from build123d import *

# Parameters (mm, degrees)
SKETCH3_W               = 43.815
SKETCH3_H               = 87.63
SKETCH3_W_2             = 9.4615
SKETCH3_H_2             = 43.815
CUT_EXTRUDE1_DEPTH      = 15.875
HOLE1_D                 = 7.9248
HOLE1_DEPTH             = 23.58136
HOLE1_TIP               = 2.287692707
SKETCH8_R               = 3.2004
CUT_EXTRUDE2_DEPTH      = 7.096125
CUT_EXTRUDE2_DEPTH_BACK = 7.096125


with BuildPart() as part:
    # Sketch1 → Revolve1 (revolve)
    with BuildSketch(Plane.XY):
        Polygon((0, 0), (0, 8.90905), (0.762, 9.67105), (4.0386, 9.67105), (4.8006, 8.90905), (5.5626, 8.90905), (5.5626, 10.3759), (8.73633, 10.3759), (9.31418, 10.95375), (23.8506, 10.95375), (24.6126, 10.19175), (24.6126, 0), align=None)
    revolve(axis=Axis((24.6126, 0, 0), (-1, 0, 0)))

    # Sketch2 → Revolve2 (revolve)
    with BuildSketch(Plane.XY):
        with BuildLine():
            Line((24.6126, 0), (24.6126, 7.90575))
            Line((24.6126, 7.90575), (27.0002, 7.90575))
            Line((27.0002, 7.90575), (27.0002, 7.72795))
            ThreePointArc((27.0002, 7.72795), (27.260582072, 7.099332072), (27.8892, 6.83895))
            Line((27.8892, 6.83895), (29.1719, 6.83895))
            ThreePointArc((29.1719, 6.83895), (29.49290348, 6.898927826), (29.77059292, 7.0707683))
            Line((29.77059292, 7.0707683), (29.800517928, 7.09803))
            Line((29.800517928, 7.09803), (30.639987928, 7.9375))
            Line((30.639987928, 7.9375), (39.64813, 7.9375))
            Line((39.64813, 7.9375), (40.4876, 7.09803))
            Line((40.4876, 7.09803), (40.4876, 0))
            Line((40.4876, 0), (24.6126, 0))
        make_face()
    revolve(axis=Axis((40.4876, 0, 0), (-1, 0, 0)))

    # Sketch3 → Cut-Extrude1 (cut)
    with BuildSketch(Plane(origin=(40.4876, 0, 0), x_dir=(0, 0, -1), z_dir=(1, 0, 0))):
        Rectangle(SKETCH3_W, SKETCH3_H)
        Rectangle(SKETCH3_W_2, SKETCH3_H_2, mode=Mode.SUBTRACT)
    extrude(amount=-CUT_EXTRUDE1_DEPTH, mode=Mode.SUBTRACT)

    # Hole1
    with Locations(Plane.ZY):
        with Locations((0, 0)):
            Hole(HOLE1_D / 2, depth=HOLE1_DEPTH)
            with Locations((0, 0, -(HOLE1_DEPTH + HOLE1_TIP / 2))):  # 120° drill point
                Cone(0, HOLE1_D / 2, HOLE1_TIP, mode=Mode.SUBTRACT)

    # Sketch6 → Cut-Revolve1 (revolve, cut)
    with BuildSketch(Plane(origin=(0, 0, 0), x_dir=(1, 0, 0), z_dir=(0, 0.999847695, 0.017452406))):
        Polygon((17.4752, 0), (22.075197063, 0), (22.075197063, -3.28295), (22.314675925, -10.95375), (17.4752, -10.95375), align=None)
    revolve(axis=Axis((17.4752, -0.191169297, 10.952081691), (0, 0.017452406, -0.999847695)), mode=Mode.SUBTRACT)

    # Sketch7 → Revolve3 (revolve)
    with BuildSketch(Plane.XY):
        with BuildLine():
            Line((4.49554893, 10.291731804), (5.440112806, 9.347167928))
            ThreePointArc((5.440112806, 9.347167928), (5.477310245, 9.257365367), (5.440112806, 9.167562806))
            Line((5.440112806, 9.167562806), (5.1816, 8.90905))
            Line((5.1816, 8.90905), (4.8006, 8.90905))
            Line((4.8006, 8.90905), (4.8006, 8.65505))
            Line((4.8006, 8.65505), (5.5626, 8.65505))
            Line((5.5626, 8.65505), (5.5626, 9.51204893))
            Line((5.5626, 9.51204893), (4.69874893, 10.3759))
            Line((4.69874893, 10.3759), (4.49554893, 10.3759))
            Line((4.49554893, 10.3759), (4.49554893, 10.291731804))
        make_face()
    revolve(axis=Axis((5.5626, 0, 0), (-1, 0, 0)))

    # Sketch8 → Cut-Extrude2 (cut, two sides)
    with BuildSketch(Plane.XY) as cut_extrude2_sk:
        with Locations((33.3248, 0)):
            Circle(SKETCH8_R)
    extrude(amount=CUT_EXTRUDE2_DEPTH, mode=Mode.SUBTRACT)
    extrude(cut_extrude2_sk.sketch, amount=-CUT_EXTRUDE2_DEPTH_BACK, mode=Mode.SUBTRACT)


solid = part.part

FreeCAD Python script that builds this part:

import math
import FreeCAD as App
import Part
import Sketcher
Q = App.Units.Quantity

doc = App.newDocument("Part")
params = doc.addObject("Spreadsheet::Sheet", "Params")
for row, (alias, value) in enumerate([
    ("sketch1_width", "0.03 in"),
    ("sketch1_width2", "0.969 in"),
    ("sketch1_width3", "0.129 in"),
    ("revolution_angle", "360 deg"),
    ("sketch2_radius", "0.035 in"),
    ("sketch2_width", "0.625 in"),
    ("sketch2_width2", "0.094 in"),
    ("sketch2_height", "0.007 in"),
    ("revolution2_angle", "360 deg"),
    ("sketch3_width", "3.45 in"),
    ("sketch3_width2", "1.725 in"),
    ("pocket1_length", "0.625 in"),
    ("sketch4_diameter", "0.312 in"),
    ("hole_diameter", "0.312 in"),
    ("hole_depth", "0.9284 in"),
    ("groove_angle", "360 deg"),
    ("sketch6_radius", "0.005 in"),
    ("sketch6_width", "0.03 in"),
    ("sketch6_height", "0.01 in"),
    ("sketch6_width2", "0.015 in"),
    ("sketch6_width3", "0.008 in"),
    ("revolution3_angle", "360 deg"),
    ("sketch7_diameter", "0.252 in"),
], start=1):
    params.set(f"A{row}", alias)
    params.set(f"B{row}", "=" + value)
    params.setAlias(f"B{row}", alias)

body = doc.addObject("PartDesign::Body", "Body")

# Sketch on XY plane
sketch1 = body.newObject("Sketcher::SketchObject", "Sketch")
sketch1.AttachmentSupport = (doc.getObject("XY_Plane"), [""])
sketch1.MapMode = "FlatFace"
sketch1.addGeometry(Part.LineSegment(App.Vector(0, 8.9, 0), App.Vector(0, 0, 0)), False)
sketch1.addGeometry(Part.LineSegment(App.Vector(0, 0, 0), App.Vector(24.6, 0, 0)), False)
sketch1.addGeometry(Part.LineSegment(App.Vector(24.6, 0, 0), App.Vector(24.6, 10.2, 0)), False)
sketch1.addGeometry(Part.LineSegment(App.Vector(24.6, 10.2, 0), App.Vector(23.9, 11, 0)), False)
sketch1.addGeometry(Part.LineSegment(App.Vector(23.9, 11, 0), App.Vector(9.3, 11, 0)), False)
sketch1.addGeometry(Part.LineSegment(App.Vector(9.3, 11, 0), App.Vector(8.7, 10.4, 0)), False)
sketch1.addGeometry(Part.LineSegment(App.Vector(8.7, 10.4, 0), App.Vector(5.6, 10.4, 0)), False)
sketch1.addGeometry(Part.LineSegment(App.Vector(5.6, 10.4, 0), App.Vector(5.6, 8.9, 0)), False)
sketch1.addGeometry(Part.LineSegment(App.Vector(5.6, 8.9, 0), App.Vector(4.8, 8.9, 0)), False)
sketch1.addGeometry(Part.LineSegment(App.Vector(4.8, 8.9, 0), App.Vector(4, 9.7, 0)), False)
sketch1.addGeometry(Part.LineSegment(App.Vector(4, 9.7, 0), App.Vector(0.8, 9.7, 0)), False)
sketch1.addGeometry(Part.LineSegment(App.Vector(0.8, 9.7, 0), App.Vector(0, 8.9, 0)), False)
sketch1.addConstraint(Sketcher.Constraint("Coincident", 0, 2, 1, 1))
sketch1.addConstraint(Sketcher.Constraint("Coincident", 1, 2, 2, 1))
sketch1.addConstraint(Sketcher.Constraint("Coincident", 2, 2, 3, 1))
sketch1.addConstraint(Sketcher.Constraint("Coincident", 3, 2, 4, 1))
sketch1.addConstraint(Sketcher.Constraint("Coincident", 4, 2, 5, 1))
sketch1.addConstraint(Sketcher.Constraint("Coincident", 5, 2, 6, 1))
sketch1.addConstraint(Sketcher.Constraint("Coincident", 6, 2, 7, 1))
sketch1.addConstraint(Sketcher.Constraint("Coincident", 7, 2, 8, 1))
sketch1.addConstraint(Sketcher.Constraint("Coincident", 8, 2, 9, 1))
sketch1.addConstraint(Sketcher.Constraint("Coincident", 9, 2, 10, 1))
sketch1.addConstraint(Sketcher.Constraint("Coincident", 10, 2, 11, 1))
sketch1.addConstraint(Sketcher.Constraint("Coincident", 11, 2, 0, 1))
sketch1.addConstraint(Sketcher.Constraint("Vertical", 0))
sketch1.addConstraint(Sketcher.Constraint("Horizontal", 1))
sketch1.addConstraint(Sketcher.Constraint("Vertical", 2))
sketch1.addConstraint(Sketcher.Constraint("Horizontal", 4))
sketch1.addConstraint(Sketcher.Constraint("Horizontal", 6))
sketch1.addConstraint(Sketcher.Constraint("Vertical", 7))
sketch1.addConstraint(Sketcher.Constraint("Horizontal", 8))
sketch1.addConstraint(Sketcher.Constraint("Horizontal", 10))
sketch1.addConstraint(Sketcher.Constraint("Coincident", 0, 2, -1, 1))
sketch1.addConstraint(Sketcher.Constraint("Perpendicular", 3, 5))
sketch1.addConstraint(Sketcher.Constraint("Perpendicular", 5, 9))
sketch1.addConstraint(Sketcher.Constraint("Perpendicular", 9, 11))
sketch1.addConstraint(Sketcher.Constraint("Horizontal", 8, 2, 11, 2))
sketch1.addConstraint(Sketcher.Constraint("Equal", 3, 9))
sketch1.addConstraint(Sketcher.Constraint("Equal", 9, 11))
sketch1.addConstraint(Sketcher.Constraint("DistanceX", 8, 2, 8, 1, Q("0.03 in")))
sketch1.addConstraint(Sketcher.Constraint("DistanceX", 1, 1, 1, 2, Q("0.969 in")))
sketch1.addConstraint(Sketcher.Constraint("DistanceX", 10, 2, 10, 1, Q("0.129 in")))
sketch1.addConstraint(Sketcher.Constraint("DistanceX", -1, 1, 10, 2, Q("0.03 in")))
sketch1.addConstraint(Sketcher.Constraint("DistanceX", 4, 2, 4, 1, Q("0.5723 in")))
sketch1.addConstraint(Sketcher.Constraint("DistanceY", -1, 1, 5, 2, Q("0.4085 in")))
sketch1.addConstraint(Sketcher.Constraint("DistanceY", 7, 2, 4, 2, Q("0.0805 in")))
sketch1.addConstraint(Sketcher.Constraint("DistanceX", 6, 2, 6, 1, Q("3.17373 mm")))
sketch1.setExpression("Constraints[27]", "Params.sketch1_width")
sketch1.setExpression("Constraints[28]", "Params.sketch1_width2")
sketch1.setExpression("Constraints[29]", "Params.sketch1_width3")
revolution = body.newObject("PartDesign::Revolution", "Revolution")
revolution.Profile = sketch1
revolution.ReferenceAxis = (sketch1, ["H_Axis"])
revolution.setExpression("Angle", "Params.revolution_angle")

# Sketch on XY plane
sketch2 = body.newObject("Sketcher::SketchObject", "Sketch001")
sketch2.AttachmentSupport = (doc.getObject("XY_Plane"), [""])
sketch2.MapMode = "FlatFace"
sketch2.addGeometry(Part.LineSegment(App.Vector(24.613, 7.906, 0), App.Vector(24.613, 0, 0)), False)
sketch2.addGeometry(Part.LineSegment(App.Vector(24.613, 0, 0), App.Vector(40.488, 0, 0)), False)
sketch2.addGeometry(Part.LineSegment(App.Vector(40.488, 0, 0), App.Vector(40.488, 7.098, 0)), False)
sketch2.addGeometry(Part.LineSegment(App.Vector(40.488, 7.098, 0), App.Vector(39.648, 7.938, 0)), False)
sketch2.addGeometry(Part.LineSegment(App.Vector(39.648, 7.938, 0), App.Vector(30.64, 7.938, 0)), False)
sketch2.addGeometry(Part.LineSegment(App.Vector(30.64, 7.938, 0), App.Vector(29.801, 7.098, 0)), False)
sketch2.addGeometry(Part.LineSegment(App.Vector(29.801, 7.098, 0), App.Vector(29.771, 7.071, 0)), False)
sketch2.addGeometry(Part.ArcOfCircle(Part.Circle(App.Vector(29.172, 7.728, 0), App.Vector(0, 0, 1), 0.889), math.radians(-90), math.radians(-48)), False)
sketch2.addGeometry(Part.LineSegment(App.Vector(29.172, 6.839, 0), App.Vector(27.889, 6.839, 0)), False)
sketch2.addGeometry(Part.ArcOfCircle(Part.Circle(App.Vector(27.889, 7.728, 0), App.Vector(0, 0, 1), 0.889), math.radians(-180), math.radians(-90)), False)
sketch2.addGeometry(Part.LineSegment(App.Vector(27, 7.728, 0), App.Vector(27, 7.906, 0)), False)
sketch2.addGeometry(Part.LineSegment(App.Vector(27, 7.906, 0), App.Vector(24.613, 7.906, 0)), False)
sketch2.addConstraint(Sketcher.Constraint("Coincident", 0, 2, 1, 1))
sketch2.addConstraint(Sketcher.Constraint("Coincident", 1, 2, 2, 1))
sketch2.addConstraint(Sketcher.Constraint("Coincident", 2, 2, 3, 1))
sketch2.addConstraint(Sketcher.Constraint("Coincident", 3, 2, 4, 1))
sketch2.addConstraint(Sketcher.Constraint("Coincident", 4, 2, 5, 1))
sketch2.addConstraint(Sketcher.Constraint("Coincident", 5, 2, 6, 1))
sketch2.addConstraint(Sketcher.Constraint("Tangent", 6, 2, 7, 2))
sketch2.addConstraint(Sketcher.Constraint("Tangent", 7, 1, 8, 1))
sketch2.addConstraint(Sketcher.Constraint("Tangent", 8, 2, 9, 2))
sketch2.addConstraint(Sketcher.Constraint("Tangent", 9, 1, 10, 1))
sketch2.addConstraint(Sketcher.Constraint("Coincident", 10, 2, 11, 1))
sketch2.addConstraint(Sketcher.Constraint("Coincident", 11, 2, 0, 1))
sketch2.addConstraint(Sketcher.Constraint("Vertical", 0))
sketch2.addConstraint(Sketcher.Constraint("Horizontal", 1))
sketch2.addConstraint(Sketcher.Constraint("Vertical", 2))
sketch2.addConstraint(Sketcher.Constraint("Horizontal", 4))
sketch2.addConstraint(Sketcher.Constraint("Horizontal", 8))
sketch2.addConstraint(Sketcher.Constraint("Vertical", 10))
sketch2.addConstraint(Sketcher.Constraint("Horizontal", 11))
sketch2.addConstraint(Sketcher.Constraint("Equal", 7, 9))
sketch2.addConstraint(Sketcher.Constraint("PointOnObject", 0, 2, -1))
sketch2.addConstraint(Sketcher.Constraint("Perpendicular", 3, 5))
sketch2.addConstraint(Sketcher.Constraint("Horizontal", 2, 2, 5, 2))
sketch2.addConstraint(Sketcher.Constraint("Equal", 3, 5))
sketch2.addConstraint(Sketcher.Constraint("Radius", 7, Q("0.035 in")))
sketch2.addConstraint(Sketcher.Constraint("DistanceX", 1, 1, 1, 2, Q("0.625 in")))
sketch2.addConstraint(Sketcher.Constraint("DistanceX", 11, 2, 11, 1, Q("0.094 in")))
sketch2.addConstraint(Sketcher.Constraint("DistanceY", 10, 1, 10, 2, Q("0.007 in")))
sketch2.addConstraint(Sketcher.Constraint("DistanceX", 8, 2, 8, 1, Q("0.0505 in")))
sketch2.addConstraint(Sketcher.Constraint("DistanceX", -1, 1, 9, 3, Q("1.098 in")))
sketch2.addConstraint(Sketcher.Constraint("DistanceY", -1, 1, 3, 2, Q("0.3125 in")))
sketch2.addConstraint(Sketcher.Constraint("DistanceY", 2, 2, 7, 3, Q("0.0248 in")))
sketch2.addConstraint(Sketcher.Constraint("DistanceY", 0, 2, 0, 1, Q("7.90575 mm")))
sketch2.addConstraint(Sketcher.Constraint("Distance", 6, Q("0.040481 mm")))
sketch2.setExpression("Constraints[24]", "Params.sketch2_radius")
sketch2.setExpression("Constraints[25]", "Params.sketch2_width")
sketch2.setExpression("Constraints[26]", "Params.sketch2_width2")
sketch2.setExpression("Constraints[27]", "Params.sketch2_height")
revolution2 = body.newObject("PartDesign::Revolution", "Revolution001")
revolution2.Profile = sketch2
revolution2.ReferenceAxis = (sketch2, ["H_Axis"])
revolution2.setExpression("Angle", "Params.revolution2_angle")

# Sketch on YZ plane
sketch3 = body.newObject("Sketcher::SketchObject", "Sketch002")
sketch3.AttachmentSupport = (doc.getObject("YZ_Plane"), [""])
sketch3.MapMode = "FlatFace"
sketch3.AttachmentOffset = App.Placement(App.Vector(0, 0, 1.594 * 25.4), App.Rotation())
sketch3.addGeometry(Part.LineSegment(App.Vector(44, 22, 0), App.Vector(-44, 22, 0)), False)
sketch3.addGeometry(Part.LineSegment(App.Vector(-44, 22, 0), App.Vector(-44, -22, 0)), False)
sketch3.addGeometry(Part.LineSegment(App.Vector(-44, -22, 0), App.Vector(44, -22, 0)), False)
sketch3.addGeometry(Part.LineSegment(App.Vector(44, -22, 0), App.Vector(44, 22, 0)), False)
sketch3.addGeometry(Part.LineSegment(App.Vector(-22, -5, 0), App.Vector(-22, 5, 0)), False)
sketch3.addGeometry(Part.LineSegment(App.Vector(-22, 5, 0), App.Vector(22, 5, 0)), False)
sketch3.addGeometry(Part.LineSegment(App.Vector(22, 5, 0), App.Vector(22, -5, 0)), False)
sketch3.addGeometry(Part.LineSegment(App.Vector(22, -5, 0), App.Vector(-22, -5, 0)), False)
sketch3.addConstraint(Sketcher.Constraint("Coincident", 0, 2, 1, 1))
sketch3.addConstraint(Sketcher.Constraint("Coincident", 1, 2, 2, 1))
sketch3.addConstraint(Sketcher.Constraint("Coincident", 2, 2, 3, 1))
sketch3.addConstraint(Sketcher.Constraint("Coincident", 3, 2, 0, 1))
sketch3.addConstraint(Sketcher.Constraint("Coincident", 4, 2, 5, 1))
sketch3.addConstraint(Sketcher.Constraint("Coincident", 5, 2, 6, 1))
sketch3.addConstraint(Sketcher.Constraint("Coincident", 6, 2, 7, 1))
sketch3.addConstraint(Sketcher.Constraint("Coincident", 7, 2, 4, 1))
sketch3.addConstraint(Sketcher.Constraint("Horizontal", 0))
sketch3.addConstraint(Sketcher.Constraint("Vertical", 1))
sketch3.addConstraint(Sketcher.Constraint("Horizontal", 2))
sketch3.addConstraint(Sketcher.Constraint("Vertical", 3))
sketch3.addConstraint(Sketcher.Constraint("Vertical", 4))
sketch3.addConstraint(Sketcher.Constraint("Horizontal", 5))
sketch3.addConstraint(Sketcher.Constraint("Vertical", 6))
sketch3.addConstraint(Sketcher.Constraint("Horizontal", 7))
sketch3.addConstraint(Sketcher.Constraint("Symmetric", 0, 2, 2, 2, -1, 1))
sketch3.addConstraint(Sketcher.Constraint("Symmetric", 4, 2, 6, 2, -1, 1))
sketch3.addConstraint(Sketcher.Constraint("Equal", 7, 1))
sketch3.addConstraint(Sketcher.Constraint("DistanceX", 0, 2, 0, 1, Q("3.45 in")))
sketch3.addConstraint(Sketcher.Constraint("DistanceX", 5, 1, 5, 2, Q("1.725 in")))
sketch3.addConstraint(Sketcher.Constraint("DistanceY", 4, 1, 4, 2, Q("0.3725 in")))
sketch3.setExpression("Constraints[19]", "Params.sketch3_width")
sketch3.setExpression("Constraints[20]", "Params.sketch3_width2")
pocket1 = body.newObject("PartDesign::Pocket", "Pocket")
pocket1.Profile = sketch3
pocket1.setExpression("Length", "Params.pocket1_length")

# Sketch on YZ plane
sketch4 = body.newObject("Sketcher::SketchObject", "Sketch003")
sketch4.AttachmentSupport = (doc.getObject("YZ_Plane"), [""])
sketch4.MapMode = "FlatFace"
sketch4.addGeometry(Part.Circle(App.Vector(0, 0, 0), App.Vector(0, 0, 1), 4), False)
sketch4.addConstraint(Sketcher.Constraint("Coincident", 0, 3, -1, 1))
sketch4.addConstraint(Sketcher.Constraint("Diameter", 0, Q("0.312 in")))
sketch4.setExpression("Constraints[1]", "Params.sketch4_diameter")
doc.recompute()
hole = body.newObject("PartDesign::Hole", "Hole")
hole.Profile = sketch4
hole.ThreadType = "None"
hole.setExpression("Diameter", "Params.hole_diameter")
hole.DepthType = "Dimension"
hole.setExpression("Depth", "Params.hole_depth")
hole.DrillPoint = "Angled"
hole.DrillPointAngle = 120
hole.Reversed = True

# Sketch on an angled plane
sketch5 = body.newObject("Sketcher::SketchObject", "Sketch004")
sketch5.Placement = App.Placement(App.Vector(0, 0, 0), App.Rotation(App.Vector(1, 0, 0), App.Vector(0, 0.017452406, -0.999847695), App.Vector(0, 0.999847695, 0.017452406), "ZXY"))
sketch5.addGeometry(Part.LineSegment(App.Vector(22.1, 0, 0), App.Vector(17.5, 0, 0)), False)
sketch5.addGeometry(Part.LineSegment(App.Vector(17.5, 0, 0), App.Vector(17.5, -11, 0)), False)
sketch5.addGeometry(Part.LineSegment(App.Vector(17.5, -11, 0), App.Vector(22.3, -11, 0)), False)
sketch5.addGeometry(Part.LineSegment(App.Vector(22.3, -11, 0), App.Vector(22.1, -3.3, 0)), False)
sketch5.addGeometry(Part.LineSegment(App.Vector(22.1, -3.3, 0), App.Vector(22.1, 0, 0)), False)
sketch5.addGeometry(Part.LineSegment(App.Vector(17.5, -11, 0), App.Vector(17.5, 0, 0)), True)  # axis
sketch5.addConstraint(Sketcher.Constraint("Coincident", 0, 2, 1, 1))
sketch5.addConstraint(Sketcher.Constraint("Coincident", 1, 2, 2, 1))
sketch5.addConstraint(Sketcher.Constraint("Coincident", 2, 2, 3, 1))
sketch5.addConstraint(Sketcher.Constraint("Coincident", 3, 2, 4, 1))
sketch5.addConstraint(Sketcher.Constraint("Coincident", 4, 2, 0, 1))
sketch5.addConstraint(Sketcher.Constraint("Horizontal", 0))
sketch5.addConstraint(Sketcher.Constraint("Vertical", 1))
sketch5.addConstraint(Sketcher.Constraint("Horizontal", 2))
sketch5.addConstraint(Sketcher.Constraint("Vertical", 4))
sketch5.addConstraint(Sketcher.Constraint("Vertical", 5))
sketch5.addConstraint(Sketcher.Constraint("Coincident", 5, 1, 1, 2))
sketch5.addConstraint(Sketcher.Constraint("PointOnObject", 0, 2, -1))
sketch5.addConstraint(Sketcher.Constraint("PointOnObject", 5, 2, -1))
sketch5.addConstraint(Sketcher.Constraint("DistanceX", -1, 1, 0, 2, Q("0.688 in")))
sketch5.addConstraint(Sketcher.Constraint("DistanceY", 2, 2, 3, 2, Q("0.302 in")))
sketch5.addConstraint(Sketcher.Constraint("DistanceY", 1, 2, 1, 1, Q("10.95375 mm")))
sketch5.addConstraint(Sketcher.Constraint("DistanceX", 0, 2, 0, 1, Q("4.599997 mm")))
sketch5.addConstraint(Sketcher.Constraint("DistanceX", 2, 1, 2, 2, Q("4.839476 mm")))
groove = body.newObject("PartDesign::Groove", "Groove")
groove.Profile = sketch5
groove.ReferenceAxis = (sketch5, ["Axis0"])
groove.setExpression("Angle", "Params.groove_angle")

# Sketch on XY plane
sketch6 = body.newObject("Sketcher::SketchObject", "Sketch005")
sketch6.AttachmentSupport = (doc.getObject("XY_Plane"), [""])
sketch6.MapMode = "FlatFace"
sketch6.addGeometry(Part.LineSegment(App.Vector(4.5, 10.29, 0), App.Vector(5.44, 9.35, 0)), False)
sketch6.addGeometry(Part.ArcOfCircle(Part.Circle(App.Vector(5.35, 9.26, 0), App.Vector(0, 0, 1), 0.13), math.radians(-45), math.radians(45)), False)
sketch6.addGeometry(Part.LineSegment(App.Vector(5.44, 9.17, 0), App.Vector(5.18, 8.91, 0)), False)
sketch6.addGeometry(Part.LineSegment(App.Vector(5.18, 8.91, 0), App.Vector(4.8, 8.91, 0)), False)
sketch6.addGeometry(Part.LineSegment(App.Vector(4.8, 8.91, 0), App.Vector(4.8, 8.66, 0)), False)
sketch6.addGeometry(Part.LineSegment(App.Vector(4.8, 8.66, 0), App.Vector(5.56, 8.66, 0)), False)
sketch6.addGeometry(Part.LineSegment(App.Vector(5.56, 8.66, 0), App.Vector(5.56, 9.51, 0)), False)
sketch6.addGeometry(Part.LineSegment(App.Vector(5.56, 9.51, 0), App.Vector(4.7, 10.38, 0)), False)
sketch6.addGeometry(Part.LineSegment(App.Vector(4.7, 10.38, 0), App.Vector(4.5, 10.38, 0)), False)
sketch6.addGeometry(Part.LineSegment(App.Vector(4.5, 10.38, 0), App.Vector(4.5, 10.29, 0)), False)
sketch6.addConstraint(Sketcher.Constraint("Tangent", 0, 2, 1, 2))
sketch6.addConstraint(Sketcher.Constraint("Tangent", 1, 1, 2, 1))
sketch6.addConstraint(Sketcher.Constraint("Coincident", 2, 2, 3, 1))
sketch6.addConstraint(Sketcher.Constraint("Coincident", 3, 2, 4, 1))
sketch6.addConstraint(Sketcher.Constraint("Coincident", 4, 2, 5, 1))
sketch6.addConstraint(Sketcher.Constraint("Coincident", 5, 2, 6, 1))
sketch6.addConstraint(Sketcher.Constraint("Coincident", 6, 2, 7, 1))
sketch6.addConstraint(Sketcher.Constraint("Coincident", 7, 2, 8, 1))
sketch6.addConstraint(Sketcher.Constraint("Coincident", 8, 2, 9, 1))
sketch6.addConstraint(Sketcher.Constraint("Coincident", 9, 2, 0, 1))
sketch6.addConstraint(Sketcher.Constraint("Horizontal", 3))
sketch6.addConstraint(Sketcher.Constraint("Vertical", 4))
sketch6.addConstraint(Sketcher.Constraint("Horizontal", 5))
sketch6.addConstraint(Sketcher.Constraint("Vertical", 6))
sketch6.addConstraint(Sketcher.Constraint("Horizontal", 8))
sketch6.addConstraint(Sketcher.Constraint("Vertical", 9))
sketch6.addConstraint(Sketcher.Constraint("Perpendicular", 0, 2))
sketch6.addConstraint(Sketcher.Constraint("Perpendicular", 2, 7))
sketch6.addConstraint(Sketcher.Constraint("Vertical", 0, 2, 1, 1))
sketch6.addConstraint(Sketcher.Constraint("Radius", 1, Q("0.005 in")))
sketch6.addConstraint(Sketcher.Constraint("DistanceX", 5, 1, 5, 2, Q("0.03 in")))
sketch6.addConstraint(Sketcher.Constraint("DistanceY", 4, 2, 4, 1, Q("0.01 in")))
sketch6.addConstraint(Sketcher.Constraint("DistanceX", 3, 2, 3, 1, Q("0.015 in")))
sketch6.addConstraint(Sketcher.Constraint("DistanceX", 8, 2, 8, 1, Q("0.008 in")))
sketch6.addConstraint(Sketcher.Constraint("DistanceX", -1, 1, 2, 2, Q("0.204 in")))
sketch6.addConstraint(Sketcher.Constraint("DistanceY", 6, 1, 6, 2, Q("0.856999 mm")))
sketch6.addConstraint(Sketcher.Constraint("DistanceY", -1, 1, 7, 2, Q("0.4085 in")))
sketch6.addConstraint(Sketcher.Constraint("DistanceY", 9, 2, 9, 1, Q("0.084168 mm")))
sketch6.addConstraint(Sketcher.Constraint("Distance", 7, Q("1.22167 mm")))
sketch6.setExpression("Constraints[19]", "Params.sketch6_radius")
sketch6.setExpression("Constraints[20]", "Params.sketch6_width")
sketch6.setExpression("Constraints[21]", "Params.sketch6_height")
sketch6.setExpression("Constraints[22]", "Params.sketch6_width2")
sketch6.setExpression("Constraints[23]", "Params.sketch6_width3")
revolution3 = body.newObject("PartDesign::Revolution", "Revolution002")
revolution3.Profile = sketch6
revolution3.ReferenceAxis = (sketch6, ["H_Axis"])
revolution3.setExpression("Angle", "Params.revolution3_angle")

# Sketch on XY plane
sketch7 = body.newObject("Sketcher::SketchObject", "Sketch006")
sketch7.AttachmentSupport = (doc.getObject("XY_Plane"), [""])
sketch7.MapMode = "FlatFace"
sketch7.addGeometry(Part.Circle(App.Vector(33.3, 0, 0), App.Vector(0, 0, 1), 3.2), False)
sketch7.addConstraint(Sketcher.Constraint("PointOnObject", 0, 3, -1))
sketch7.addConstraint(Sketcher.Constraint("Diameter", 0, Q("0.252 in")))
sketch7.addConstraint(Sketcher.Constraint("DistanceX", -1, 1, 0, 3, Q("1.312 in")))
sketch7.setExpression("Constraints[1]", "Params.sketch7_diameter")
pocket2 = body.newObject("PartDesign::Pocket", "Pocket001")
pocket2.Profile = sketch7
pocket2.Type = "ThroughAll"
pocket2.Midplane = True

doc.recompute()
